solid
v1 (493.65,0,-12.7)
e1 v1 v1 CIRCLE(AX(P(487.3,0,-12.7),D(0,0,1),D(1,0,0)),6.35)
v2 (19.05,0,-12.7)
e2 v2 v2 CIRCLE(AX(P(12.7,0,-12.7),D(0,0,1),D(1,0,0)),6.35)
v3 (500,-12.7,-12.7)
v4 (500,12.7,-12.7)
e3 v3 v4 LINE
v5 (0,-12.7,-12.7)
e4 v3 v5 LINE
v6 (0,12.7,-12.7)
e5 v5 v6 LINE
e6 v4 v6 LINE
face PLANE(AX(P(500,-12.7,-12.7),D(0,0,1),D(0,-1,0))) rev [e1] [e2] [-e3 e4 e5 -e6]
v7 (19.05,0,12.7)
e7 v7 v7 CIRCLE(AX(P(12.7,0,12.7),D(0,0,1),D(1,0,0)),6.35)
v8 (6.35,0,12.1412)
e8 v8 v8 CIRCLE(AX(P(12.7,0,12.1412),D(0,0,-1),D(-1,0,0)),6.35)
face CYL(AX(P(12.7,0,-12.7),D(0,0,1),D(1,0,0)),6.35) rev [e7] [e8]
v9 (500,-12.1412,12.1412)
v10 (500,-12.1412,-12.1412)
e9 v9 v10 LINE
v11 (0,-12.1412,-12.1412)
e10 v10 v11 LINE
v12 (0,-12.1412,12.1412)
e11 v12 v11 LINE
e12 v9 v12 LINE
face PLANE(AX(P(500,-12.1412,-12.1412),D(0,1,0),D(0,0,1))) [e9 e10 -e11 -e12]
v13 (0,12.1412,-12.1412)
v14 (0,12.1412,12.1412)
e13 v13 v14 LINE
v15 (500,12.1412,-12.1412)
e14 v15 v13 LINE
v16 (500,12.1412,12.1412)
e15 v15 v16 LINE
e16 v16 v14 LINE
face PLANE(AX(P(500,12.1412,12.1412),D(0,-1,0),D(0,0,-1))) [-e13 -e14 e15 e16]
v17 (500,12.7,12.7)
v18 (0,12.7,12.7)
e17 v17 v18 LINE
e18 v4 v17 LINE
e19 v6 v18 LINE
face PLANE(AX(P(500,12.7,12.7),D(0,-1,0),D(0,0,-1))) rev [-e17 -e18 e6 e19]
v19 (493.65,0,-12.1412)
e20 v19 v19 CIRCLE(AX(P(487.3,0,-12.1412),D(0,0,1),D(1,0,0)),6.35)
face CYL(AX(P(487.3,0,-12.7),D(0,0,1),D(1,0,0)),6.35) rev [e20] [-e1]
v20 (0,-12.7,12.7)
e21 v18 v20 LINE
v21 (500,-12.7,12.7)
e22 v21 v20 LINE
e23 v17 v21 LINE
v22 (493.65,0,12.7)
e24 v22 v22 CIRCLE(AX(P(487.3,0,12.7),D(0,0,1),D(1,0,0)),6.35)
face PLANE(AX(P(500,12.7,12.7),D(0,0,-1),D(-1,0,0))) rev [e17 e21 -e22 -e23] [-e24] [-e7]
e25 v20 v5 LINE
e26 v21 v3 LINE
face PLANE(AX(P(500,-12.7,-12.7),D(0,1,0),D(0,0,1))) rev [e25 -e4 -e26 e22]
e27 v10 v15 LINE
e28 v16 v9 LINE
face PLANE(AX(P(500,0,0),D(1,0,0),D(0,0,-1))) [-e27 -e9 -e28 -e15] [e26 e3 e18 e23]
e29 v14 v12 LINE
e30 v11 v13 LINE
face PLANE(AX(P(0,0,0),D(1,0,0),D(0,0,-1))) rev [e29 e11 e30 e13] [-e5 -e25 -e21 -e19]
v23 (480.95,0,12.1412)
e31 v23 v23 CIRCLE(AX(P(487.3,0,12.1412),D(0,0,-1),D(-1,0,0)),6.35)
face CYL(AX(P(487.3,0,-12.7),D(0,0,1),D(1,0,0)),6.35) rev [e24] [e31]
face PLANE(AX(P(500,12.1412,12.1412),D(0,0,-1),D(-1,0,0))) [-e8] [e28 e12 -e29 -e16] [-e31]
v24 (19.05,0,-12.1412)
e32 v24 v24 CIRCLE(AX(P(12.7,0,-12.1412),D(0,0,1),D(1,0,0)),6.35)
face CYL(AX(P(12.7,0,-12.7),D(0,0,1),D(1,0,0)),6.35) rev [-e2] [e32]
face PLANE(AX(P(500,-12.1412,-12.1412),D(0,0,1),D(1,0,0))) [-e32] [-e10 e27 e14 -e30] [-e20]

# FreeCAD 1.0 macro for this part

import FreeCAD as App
import Part
import Sketcher
Q = App.Units.Quantity


def add_polygon(sketch, points):
    """Adds a closed chain of lines whose ends are joined by coincident constraints."""
    first, n = sketch.GeometryCount, len(points)
    for a, b in zip(points, points[1:] + points[:1]):
        sketch.addGeometry(Part.LineSegment(App.Vector(*a, 0), App.Vector(*b, 0)), False)
    for i in range(n):
        sketch.addConstraint(Sketcher.Constraint("Coincident", first + i, 2, first + (i + 1) % n, 1))

doc = App.newDocument("Part")
body = doc.addObject("PartDesign::Body", "Body")

# Sketch on YZ plane
sketch1 = doc.addObject("Sketcher::SketchObject", "Sketch")
body.addObject(sketch1)
sketch1.AttachmentSupport = (doc.YZ_Plane, [""])
sketch1.MapMode = "FlatFace"
add_polygon(sketch1, [(-13, 13), (-13, -13), (13, -13), (13, 13)])  # lines 0-3
add_polygon(sketch1, [(12, -12), (-12, -12), (-12, 12), (12, 12)])  # lines 4-7
sketch1.addConstraint([
    Sketcher.Constraint("Vertical", 0),
    Sketcher.Constraint("Horizontal", 1),
    Sketcher.Constraint("Vertical", 2),
    Sketcher.Constraint("Horizontal", 3),
    Sketcher.Constraint("Horizontal", 4),
    Sketcher.Constraint("Vertical", 5),
    Sketcher.Constraint("Horizontal", 6),
    Sketcher.Constraint("Vertical", 7),
    Sketcher.Constraint("Symmetric", 0, 2, 2, 2, -1, 1),
    Sketcher.Constraint("Symmetric", 4, 2, 6, 2, -1, 1),
    Sketcher.Constraint("Equal", 3, 0),
    Sketcher.Constraint("Equal", 6, 5),
    Sketcher.Constraint("DistanceX", 1, 1, 1, 2, Q("1 in")),
    Sketcher.Constraint("DistanceX", 4, 2, 4, 1, Q("0.956 in")),
])
pad1 = doc.addObject("PartDesign::Pad", "Pad")
body.addObject(pad1)
pad1.Profile = sketch1
pad1.Length = 500

# Sketch on XY plane
sketch2 = doc.addObject("Sketcher::SketchObject", "Sketch001")
body.addObject(sketch2)
sketch2.AttachmentSupport = (doc.XY_Plane, [""])
sketch2.MapMode = "FlatFace"
sketch2.AttachmentOffset = App.Placement(App.Vector(0, 0, 0.5 * 25.4), App.Rotation())
sketch2.addGeometry([
    Part.Circle(App.Vector(13, 0, 0), App.Vector(0, 0, 1), 6),
    Part.Circle(App.Vector(487, 0, 0), App.Vector(0, 0, 1), 6),
], False)
sketch2.addConstraint([
    Sketcher.Constraint("Equal", 0, 1),
    Sketcher.Constraint("PointOnObject", 0, 3, -1),
    Sketcher.Constraint("PointOnObject", 1, 3, -1),
    Sketcher.Constraint("Diameter", 0, Q("0.5 in")),
    Sketcher.Constraint("DistanceX", -1, 1, 0, 3, Q("0.5 in")),
    Sketcher.Constraint("DistanceX", -1, 1, 1, 3, Q("487.3 mm")),
])
pocket1 = doc.addObject("PartDesign::Pocket", "Pocket")
body.addObject(pocket1)
pocket1.Profile = sketch2
pocket1.Type = "ThroughAll"

doc.recompute()
